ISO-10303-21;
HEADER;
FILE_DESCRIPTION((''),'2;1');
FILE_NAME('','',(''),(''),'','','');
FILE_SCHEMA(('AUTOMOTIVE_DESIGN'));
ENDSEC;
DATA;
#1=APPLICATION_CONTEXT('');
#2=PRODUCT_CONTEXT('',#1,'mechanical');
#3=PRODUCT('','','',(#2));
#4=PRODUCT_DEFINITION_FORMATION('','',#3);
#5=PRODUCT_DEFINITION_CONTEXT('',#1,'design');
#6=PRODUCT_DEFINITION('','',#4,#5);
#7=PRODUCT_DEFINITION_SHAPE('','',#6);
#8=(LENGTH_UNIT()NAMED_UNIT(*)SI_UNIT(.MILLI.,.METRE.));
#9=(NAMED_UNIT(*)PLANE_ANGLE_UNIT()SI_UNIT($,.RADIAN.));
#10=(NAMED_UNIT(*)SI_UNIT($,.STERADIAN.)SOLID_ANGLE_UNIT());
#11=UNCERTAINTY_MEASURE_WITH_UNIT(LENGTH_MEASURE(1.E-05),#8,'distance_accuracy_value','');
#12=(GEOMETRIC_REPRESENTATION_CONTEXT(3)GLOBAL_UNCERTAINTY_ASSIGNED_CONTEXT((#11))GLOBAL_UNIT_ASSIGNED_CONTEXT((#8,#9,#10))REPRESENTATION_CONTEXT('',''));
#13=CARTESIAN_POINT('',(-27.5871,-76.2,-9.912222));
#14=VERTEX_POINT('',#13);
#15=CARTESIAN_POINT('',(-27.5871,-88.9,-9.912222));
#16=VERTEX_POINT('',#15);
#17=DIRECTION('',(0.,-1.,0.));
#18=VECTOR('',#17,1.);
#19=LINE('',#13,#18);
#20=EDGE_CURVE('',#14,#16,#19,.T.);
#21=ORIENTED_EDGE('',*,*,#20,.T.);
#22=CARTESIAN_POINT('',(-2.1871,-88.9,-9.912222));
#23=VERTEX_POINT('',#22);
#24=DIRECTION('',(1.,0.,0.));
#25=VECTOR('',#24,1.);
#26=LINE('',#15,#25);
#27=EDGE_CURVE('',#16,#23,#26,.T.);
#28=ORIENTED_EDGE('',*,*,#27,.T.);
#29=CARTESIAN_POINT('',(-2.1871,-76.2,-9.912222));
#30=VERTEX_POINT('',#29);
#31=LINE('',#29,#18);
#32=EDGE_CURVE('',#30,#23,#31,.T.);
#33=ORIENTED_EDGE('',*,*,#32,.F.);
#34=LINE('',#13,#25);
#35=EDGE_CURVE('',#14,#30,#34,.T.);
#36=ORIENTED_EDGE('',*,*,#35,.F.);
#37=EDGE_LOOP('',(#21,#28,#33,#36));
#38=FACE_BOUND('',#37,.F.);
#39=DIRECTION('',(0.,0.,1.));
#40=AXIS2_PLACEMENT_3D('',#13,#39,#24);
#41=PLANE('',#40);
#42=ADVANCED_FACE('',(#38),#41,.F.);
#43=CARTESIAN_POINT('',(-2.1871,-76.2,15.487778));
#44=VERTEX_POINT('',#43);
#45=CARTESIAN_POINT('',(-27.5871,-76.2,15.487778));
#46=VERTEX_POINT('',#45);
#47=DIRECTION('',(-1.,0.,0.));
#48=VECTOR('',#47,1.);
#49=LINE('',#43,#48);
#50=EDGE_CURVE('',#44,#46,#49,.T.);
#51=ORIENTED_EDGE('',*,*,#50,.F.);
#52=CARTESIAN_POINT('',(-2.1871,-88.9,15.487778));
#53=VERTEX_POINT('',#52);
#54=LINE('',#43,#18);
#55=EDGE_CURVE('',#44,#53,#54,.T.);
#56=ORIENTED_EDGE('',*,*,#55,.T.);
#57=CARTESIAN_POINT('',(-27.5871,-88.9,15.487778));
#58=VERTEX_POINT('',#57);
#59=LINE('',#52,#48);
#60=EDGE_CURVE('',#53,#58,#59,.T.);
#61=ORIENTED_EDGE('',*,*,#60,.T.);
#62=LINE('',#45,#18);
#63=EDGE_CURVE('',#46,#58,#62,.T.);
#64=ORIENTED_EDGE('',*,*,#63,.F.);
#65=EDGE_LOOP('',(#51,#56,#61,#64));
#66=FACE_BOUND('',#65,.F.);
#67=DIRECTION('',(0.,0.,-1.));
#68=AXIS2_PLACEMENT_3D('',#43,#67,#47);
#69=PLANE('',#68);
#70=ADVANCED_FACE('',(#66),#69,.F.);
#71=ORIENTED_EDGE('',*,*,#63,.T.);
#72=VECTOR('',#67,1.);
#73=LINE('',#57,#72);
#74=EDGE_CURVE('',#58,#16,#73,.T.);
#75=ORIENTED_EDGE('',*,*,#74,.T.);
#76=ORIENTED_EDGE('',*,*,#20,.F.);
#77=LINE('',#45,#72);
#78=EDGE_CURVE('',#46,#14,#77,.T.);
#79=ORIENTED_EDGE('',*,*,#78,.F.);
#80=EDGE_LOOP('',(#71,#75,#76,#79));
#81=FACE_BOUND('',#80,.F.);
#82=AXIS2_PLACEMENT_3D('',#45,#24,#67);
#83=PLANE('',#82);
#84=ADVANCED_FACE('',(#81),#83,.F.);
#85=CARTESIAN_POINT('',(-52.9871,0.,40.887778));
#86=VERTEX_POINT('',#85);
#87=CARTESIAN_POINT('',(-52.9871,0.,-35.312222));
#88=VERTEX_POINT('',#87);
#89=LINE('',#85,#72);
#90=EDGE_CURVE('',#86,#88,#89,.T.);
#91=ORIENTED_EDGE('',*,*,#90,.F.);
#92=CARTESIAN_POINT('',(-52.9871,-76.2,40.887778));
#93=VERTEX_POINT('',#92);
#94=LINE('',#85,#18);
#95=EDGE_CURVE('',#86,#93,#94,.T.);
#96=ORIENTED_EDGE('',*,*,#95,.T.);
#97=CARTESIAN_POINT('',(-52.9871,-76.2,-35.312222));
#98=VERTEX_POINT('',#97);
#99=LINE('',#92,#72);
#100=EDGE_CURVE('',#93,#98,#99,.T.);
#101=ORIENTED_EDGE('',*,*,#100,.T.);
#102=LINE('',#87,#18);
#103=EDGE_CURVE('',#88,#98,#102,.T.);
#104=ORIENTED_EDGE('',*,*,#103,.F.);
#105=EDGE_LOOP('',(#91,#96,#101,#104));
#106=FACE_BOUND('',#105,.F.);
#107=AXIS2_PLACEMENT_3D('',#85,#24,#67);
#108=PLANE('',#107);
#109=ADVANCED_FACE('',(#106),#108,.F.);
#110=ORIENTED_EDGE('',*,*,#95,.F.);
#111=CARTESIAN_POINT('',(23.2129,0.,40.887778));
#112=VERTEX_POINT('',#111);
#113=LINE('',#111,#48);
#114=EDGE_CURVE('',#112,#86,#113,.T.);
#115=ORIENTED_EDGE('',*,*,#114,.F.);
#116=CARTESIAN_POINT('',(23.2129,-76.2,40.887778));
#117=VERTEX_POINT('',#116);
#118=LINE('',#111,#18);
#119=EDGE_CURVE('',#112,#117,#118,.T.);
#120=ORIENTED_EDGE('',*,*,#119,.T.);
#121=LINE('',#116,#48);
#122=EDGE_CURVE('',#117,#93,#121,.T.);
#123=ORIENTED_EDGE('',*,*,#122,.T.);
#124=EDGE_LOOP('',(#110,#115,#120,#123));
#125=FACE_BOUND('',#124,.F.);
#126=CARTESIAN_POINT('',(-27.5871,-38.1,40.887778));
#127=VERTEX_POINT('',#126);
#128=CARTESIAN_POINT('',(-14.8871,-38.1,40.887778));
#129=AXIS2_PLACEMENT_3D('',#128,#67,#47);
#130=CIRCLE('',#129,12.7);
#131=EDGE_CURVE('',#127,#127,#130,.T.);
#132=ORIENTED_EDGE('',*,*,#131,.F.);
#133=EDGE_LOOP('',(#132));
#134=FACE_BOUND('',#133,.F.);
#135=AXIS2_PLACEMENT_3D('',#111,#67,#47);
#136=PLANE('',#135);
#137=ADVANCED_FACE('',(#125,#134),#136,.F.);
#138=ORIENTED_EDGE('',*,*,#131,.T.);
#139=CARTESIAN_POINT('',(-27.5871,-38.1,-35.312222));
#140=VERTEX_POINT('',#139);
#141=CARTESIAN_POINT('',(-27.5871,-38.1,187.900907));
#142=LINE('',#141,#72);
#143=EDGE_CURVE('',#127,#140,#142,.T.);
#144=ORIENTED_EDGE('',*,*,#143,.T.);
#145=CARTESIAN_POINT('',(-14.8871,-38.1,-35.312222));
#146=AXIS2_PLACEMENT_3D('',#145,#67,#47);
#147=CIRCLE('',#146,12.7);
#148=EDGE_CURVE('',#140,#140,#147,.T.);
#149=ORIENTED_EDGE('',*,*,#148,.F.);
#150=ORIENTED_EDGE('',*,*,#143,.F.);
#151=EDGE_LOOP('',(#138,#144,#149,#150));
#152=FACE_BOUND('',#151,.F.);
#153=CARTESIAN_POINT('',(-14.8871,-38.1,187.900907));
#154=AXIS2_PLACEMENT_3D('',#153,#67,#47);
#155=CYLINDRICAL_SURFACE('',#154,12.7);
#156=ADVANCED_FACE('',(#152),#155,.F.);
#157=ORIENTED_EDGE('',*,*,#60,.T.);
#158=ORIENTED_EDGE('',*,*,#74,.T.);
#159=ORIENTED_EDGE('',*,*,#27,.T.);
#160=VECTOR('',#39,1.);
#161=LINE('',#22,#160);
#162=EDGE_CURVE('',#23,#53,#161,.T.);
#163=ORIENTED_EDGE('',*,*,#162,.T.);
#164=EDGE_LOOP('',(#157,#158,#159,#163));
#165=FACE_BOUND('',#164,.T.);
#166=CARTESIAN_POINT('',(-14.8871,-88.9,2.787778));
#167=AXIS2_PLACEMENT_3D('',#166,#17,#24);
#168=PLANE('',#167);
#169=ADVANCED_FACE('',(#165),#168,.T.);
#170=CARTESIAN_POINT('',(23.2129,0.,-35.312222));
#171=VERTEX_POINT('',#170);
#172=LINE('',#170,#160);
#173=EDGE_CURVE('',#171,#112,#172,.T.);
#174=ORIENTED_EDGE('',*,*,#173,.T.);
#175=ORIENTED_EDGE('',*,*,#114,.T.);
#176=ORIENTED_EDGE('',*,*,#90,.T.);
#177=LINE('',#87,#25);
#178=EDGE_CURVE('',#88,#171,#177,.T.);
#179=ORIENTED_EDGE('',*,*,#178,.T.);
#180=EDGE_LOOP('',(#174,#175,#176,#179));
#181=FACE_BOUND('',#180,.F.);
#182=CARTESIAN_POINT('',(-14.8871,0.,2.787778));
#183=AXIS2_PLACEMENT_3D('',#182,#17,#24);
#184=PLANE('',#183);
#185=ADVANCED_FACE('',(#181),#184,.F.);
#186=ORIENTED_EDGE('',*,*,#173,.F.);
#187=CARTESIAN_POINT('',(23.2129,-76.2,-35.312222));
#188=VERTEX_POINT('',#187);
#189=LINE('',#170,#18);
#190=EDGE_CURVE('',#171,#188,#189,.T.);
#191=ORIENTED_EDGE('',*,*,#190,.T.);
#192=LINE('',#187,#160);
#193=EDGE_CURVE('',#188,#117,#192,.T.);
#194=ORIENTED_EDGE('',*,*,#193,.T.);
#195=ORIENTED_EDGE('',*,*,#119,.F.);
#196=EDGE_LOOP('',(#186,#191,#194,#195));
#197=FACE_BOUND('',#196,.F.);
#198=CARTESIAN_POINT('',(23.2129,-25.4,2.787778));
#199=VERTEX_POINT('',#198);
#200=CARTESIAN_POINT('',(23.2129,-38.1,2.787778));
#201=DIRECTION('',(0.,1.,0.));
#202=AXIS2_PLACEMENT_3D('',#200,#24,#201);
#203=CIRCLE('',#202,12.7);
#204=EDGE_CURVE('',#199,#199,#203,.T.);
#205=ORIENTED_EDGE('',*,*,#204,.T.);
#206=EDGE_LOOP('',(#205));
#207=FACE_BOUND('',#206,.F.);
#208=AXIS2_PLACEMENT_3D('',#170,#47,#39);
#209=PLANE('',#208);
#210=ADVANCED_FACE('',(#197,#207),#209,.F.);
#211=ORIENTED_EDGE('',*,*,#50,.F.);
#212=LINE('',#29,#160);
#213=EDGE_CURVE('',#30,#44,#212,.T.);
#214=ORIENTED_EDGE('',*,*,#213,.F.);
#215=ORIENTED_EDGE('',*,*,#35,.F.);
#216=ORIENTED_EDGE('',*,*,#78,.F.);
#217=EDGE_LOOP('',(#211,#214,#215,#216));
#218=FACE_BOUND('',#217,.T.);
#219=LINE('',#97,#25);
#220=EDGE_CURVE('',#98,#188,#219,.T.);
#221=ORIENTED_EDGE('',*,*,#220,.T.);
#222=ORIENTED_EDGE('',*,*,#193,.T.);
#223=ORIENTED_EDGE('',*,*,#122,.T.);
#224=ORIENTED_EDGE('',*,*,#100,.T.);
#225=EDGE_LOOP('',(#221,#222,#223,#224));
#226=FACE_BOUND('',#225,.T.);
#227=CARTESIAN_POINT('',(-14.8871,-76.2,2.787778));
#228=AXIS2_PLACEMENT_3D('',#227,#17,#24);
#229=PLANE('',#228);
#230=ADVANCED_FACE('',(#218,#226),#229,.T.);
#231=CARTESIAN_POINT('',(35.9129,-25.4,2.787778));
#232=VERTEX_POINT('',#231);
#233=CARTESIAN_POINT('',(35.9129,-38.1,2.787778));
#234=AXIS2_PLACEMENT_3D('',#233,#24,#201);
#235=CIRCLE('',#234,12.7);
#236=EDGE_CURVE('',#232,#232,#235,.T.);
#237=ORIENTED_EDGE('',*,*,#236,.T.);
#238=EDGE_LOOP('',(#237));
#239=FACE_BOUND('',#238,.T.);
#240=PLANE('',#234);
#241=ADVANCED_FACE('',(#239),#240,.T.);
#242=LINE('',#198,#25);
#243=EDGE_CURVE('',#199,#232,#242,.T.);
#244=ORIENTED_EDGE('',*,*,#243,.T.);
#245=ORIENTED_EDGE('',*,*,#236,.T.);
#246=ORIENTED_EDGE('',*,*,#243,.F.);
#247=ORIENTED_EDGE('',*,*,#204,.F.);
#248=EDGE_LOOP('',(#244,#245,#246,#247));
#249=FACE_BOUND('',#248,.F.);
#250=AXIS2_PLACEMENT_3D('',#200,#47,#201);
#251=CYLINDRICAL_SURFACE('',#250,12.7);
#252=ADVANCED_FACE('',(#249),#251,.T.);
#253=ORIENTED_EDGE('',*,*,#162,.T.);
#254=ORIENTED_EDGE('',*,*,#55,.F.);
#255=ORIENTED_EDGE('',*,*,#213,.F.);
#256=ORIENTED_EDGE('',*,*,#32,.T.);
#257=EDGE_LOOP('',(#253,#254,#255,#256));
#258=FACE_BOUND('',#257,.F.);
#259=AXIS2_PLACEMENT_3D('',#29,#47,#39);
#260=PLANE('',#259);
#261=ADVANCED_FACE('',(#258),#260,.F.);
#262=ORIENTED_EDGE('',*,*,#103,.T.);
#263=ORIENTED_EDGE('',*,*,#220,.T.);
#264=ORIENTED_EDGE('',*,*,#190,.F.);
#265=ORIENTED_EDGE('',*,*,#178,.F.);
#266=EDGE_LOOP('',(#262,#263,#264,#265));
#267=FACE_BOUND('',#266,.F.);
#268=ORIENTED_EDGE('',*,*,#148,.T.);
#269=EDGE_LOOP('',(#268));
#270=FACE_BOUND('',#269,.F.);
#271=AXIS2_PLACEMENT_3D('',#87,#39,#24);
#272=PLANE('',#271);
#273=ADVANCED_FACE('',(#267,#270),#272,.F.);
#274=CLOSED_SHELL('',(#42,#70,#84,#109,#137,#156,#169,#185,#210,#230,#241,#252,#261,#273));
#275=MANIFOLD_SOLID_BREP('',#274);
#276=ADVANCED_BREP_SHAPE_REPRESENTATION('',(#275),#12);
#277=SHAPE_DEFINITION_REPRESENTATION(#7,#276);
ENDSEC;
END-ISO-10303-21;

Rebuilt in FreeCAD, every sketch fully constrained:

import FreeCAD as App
import Part
import Sketcher

V = App.Vector
Q = App.Units.Quantity

doc = App.newDocument("Part")
body = doc.addObject("PartDesign::Body", "Body")

# Sketch on XZ plane
sketch1 = body.newObject("Sketcher::SketchObject", "Sketch")
sketch1.AttachmentSupport = (doc.getObject("XZ_Plane"), [""])
sketch1.MapMode = "FlatFace"
sketch1.addGeometry(Part.LineSegment(V(23, 41, 0), V(-53, 41, 0)), False)
sketch1.addGeometry(Part.LineSegment(V(-53, 41, 0), V(-53, -35, 0)), False)
sketch1.addGeometry(Part.LineSegment(V(-53, -35, 0), V(23, -35, 0)), False)
sketch1.addGeometry(Part.LineSegment(V(23, -35, 0), V(23, 41, 0)), False)
sketch1.addConstraint(Sketcher.Constraint("Coincident", 0, 2, 1, 1))
sketch1.addConstraint(Sketcher.Constraint("Coincident", 1, 2, 2, 1))
sketch1.addConstraint(Sketcher.Constraint("Coincident", 2, 2, 3, 1))
sketch1.addConstraint(Sketcher.Constraint("Coincident", 3, 2, 0, 1))
sketch1.addConstraint(Sketcher.Constraint("Horizontal", 0))
sketch1.addConstraint(Sketcher.Constraint("Vertical", 1))
sketch1.addConstraint(Sketcher.Constraint("Horizontal", 2))
sketch1.addConstraint(Sketcher.Constraint("Vertical", 3))
sketch1.addConstraint(Sketcher.Constraint("Equal", 2, 1))
sketch1.addConstraint(Sketcher.Constraint("DistanceX", 0, 2, 0, 1, Q("3 in")))
sketch1.addConstraint(Sketcher.Constraint("DistanceX", 0, 2, -1, 1, Q("52.9871 mm")))
sketch1.addConstraint(Sketcher.Constraint("DistanceY", 1, 2, -1, 1, Q("35.312222 mm")))
pad1 = body.newObject("PartDesign::Pad", "Pad")
pad1.Profile = sketch1
pad1.Length = Q("3 in")

# Sketch on XZ plane
sketch2 = body.newObject("Sketcher::SketchObject", "Sketch001")
sketch2.AttachmentSupport = (doc.getObject("XZ_Plane"), [""])
sketch2.MapMode = "FlatFace"
sketch2.AttachmentOffset = App.Placement(V(0, 0, 3 * 25.4), App.Rotation())
sketch2.addGeometry(Part.LineSegment(V(-2, 15, 0), V(-28, 15, 0)), False)
sketch2.addGeometry(Part.LineSegment(V(-28, 15, 0), V(-28, -10, 0)), False)
sketch2.addGeometry(Part.LineSegment(V(-28, -10, 0), V(-2, -10, 0)), False)
sketch2.addGeometry(Part.LineSegment(V(-2, -10, 0), V(-2, 15, 0)), False)
sketch2.addConstraint(Sketcher.Constraint("Coincident", 0, 2, 1, 1))
sketch2.addConstraint(Sketcher.Constraint("Coincident", 1, 2, 2, 1))
sketch2.addConstraint(Sketcher.Constraint("Coincident", 2, 2, 3, 1))
sketch2.addConstraint(Sketcher.Constraint("Coincident", 3, 2, 0, 1))
sketch2.addConstraint(Sketcher.Constraint("Horizontal", 0))
sketch2.addConstraint(Sketcher.Constraint("Vertical", 1))
sketch2.addConstraint(Sketcher.Constraint("Horizontal", 2))
sketch2.addConstraint(Sketcher.Constraint("Vertical", 3))
sketch2.addConstraint(Sketcher.Constraint("Equal", 2, 1))
sketch2.addConstraint(Sketcher.Constraint("DistanceX", 0, 2, 0, 1, Q("1 in")))
sketch2.addConstraint(Sketcher.Constraint("DistanceX", 0, 2, -1, 1, Q("27.5871 mm")))
sketch2.addConstraint(Sketcher.Constraint("DistanceY", -1, 1, 0, 2, Q("15.487778 mm")))
pad2 = body.newObject("PartDesign::Pad", "Pad001")
pad2.Profile = sketch2
pad2.Length = Q("0.5 in")

# Sketch on YZ plane
sketch3 = body.newObject("Sketcher::SketchObject", "Sketch002")
sketch3.AttachmentSupport = (doc.getObject("YZ_Plane"), [""])
sketch3.MapMode = "FlatFace"
sketch3.AttachmentOffset = App.Placement(V(0, 0, 23.2129), App.Rotation())
sketch3.addGeometry(Part.Circle(V(-38, 3, 0), V(0, 0, 1), 13), False)
sketch3.addConstraint(Sketcher.Constraint("Diameter", 0, Q("1 in")))
sketch3.addConstraint(Sketcher.Constraint("DistanceX", 0, 3, -1, 1, Q("1.5 in")))
sketch3.addConstraint(Sketcher.Constraint("DistanceY", -1, 1, 0, 3, Q("2.787778 mm")))
pad3 = body.newObject("PartDesign::Pad", "Pad002")
pad3.Profile = sketch3
pad3.Length = Q("0.5 in")

# Sketch on XY plane
sketch4 = body.newObject("Sketcher::SketchObject", "Sketch003")
sketch4.AttachmentSupport = (doc.getObject("XY_Plane"), [""])
sketch4.MapMode = "FlatFace"
sketch4.AttachmentOffset = App.Placement(V(0, 0, 40.887778), App.Rotation())
sketch4.addGeometry(Part.Circle(V(-15, -38, 0), V(0, 0, 1), 13), False)
sketch4.addConstraint(Sketcher.Constraint("Diameter", 0, Q("1 in")))
sketch4.addConstraint(Sketcher.Constraint("DistanceY", 0, 3, -1, 1, Q("1.5 in")))
sketch4.addConstraint(Sketcher.Constraint("DistanceX", 0, 3, -1, 1, Q("14.8871 mm")))
doc.recompute()
hole = body.newObject("PartDesign::Hole", "Hole")
hole.Profile = sketch4
hole.ThreadType = "None"
hole.Diameter = Q("1 in")
hole.DepthType = "ThroughAll"

doc.recompute()
